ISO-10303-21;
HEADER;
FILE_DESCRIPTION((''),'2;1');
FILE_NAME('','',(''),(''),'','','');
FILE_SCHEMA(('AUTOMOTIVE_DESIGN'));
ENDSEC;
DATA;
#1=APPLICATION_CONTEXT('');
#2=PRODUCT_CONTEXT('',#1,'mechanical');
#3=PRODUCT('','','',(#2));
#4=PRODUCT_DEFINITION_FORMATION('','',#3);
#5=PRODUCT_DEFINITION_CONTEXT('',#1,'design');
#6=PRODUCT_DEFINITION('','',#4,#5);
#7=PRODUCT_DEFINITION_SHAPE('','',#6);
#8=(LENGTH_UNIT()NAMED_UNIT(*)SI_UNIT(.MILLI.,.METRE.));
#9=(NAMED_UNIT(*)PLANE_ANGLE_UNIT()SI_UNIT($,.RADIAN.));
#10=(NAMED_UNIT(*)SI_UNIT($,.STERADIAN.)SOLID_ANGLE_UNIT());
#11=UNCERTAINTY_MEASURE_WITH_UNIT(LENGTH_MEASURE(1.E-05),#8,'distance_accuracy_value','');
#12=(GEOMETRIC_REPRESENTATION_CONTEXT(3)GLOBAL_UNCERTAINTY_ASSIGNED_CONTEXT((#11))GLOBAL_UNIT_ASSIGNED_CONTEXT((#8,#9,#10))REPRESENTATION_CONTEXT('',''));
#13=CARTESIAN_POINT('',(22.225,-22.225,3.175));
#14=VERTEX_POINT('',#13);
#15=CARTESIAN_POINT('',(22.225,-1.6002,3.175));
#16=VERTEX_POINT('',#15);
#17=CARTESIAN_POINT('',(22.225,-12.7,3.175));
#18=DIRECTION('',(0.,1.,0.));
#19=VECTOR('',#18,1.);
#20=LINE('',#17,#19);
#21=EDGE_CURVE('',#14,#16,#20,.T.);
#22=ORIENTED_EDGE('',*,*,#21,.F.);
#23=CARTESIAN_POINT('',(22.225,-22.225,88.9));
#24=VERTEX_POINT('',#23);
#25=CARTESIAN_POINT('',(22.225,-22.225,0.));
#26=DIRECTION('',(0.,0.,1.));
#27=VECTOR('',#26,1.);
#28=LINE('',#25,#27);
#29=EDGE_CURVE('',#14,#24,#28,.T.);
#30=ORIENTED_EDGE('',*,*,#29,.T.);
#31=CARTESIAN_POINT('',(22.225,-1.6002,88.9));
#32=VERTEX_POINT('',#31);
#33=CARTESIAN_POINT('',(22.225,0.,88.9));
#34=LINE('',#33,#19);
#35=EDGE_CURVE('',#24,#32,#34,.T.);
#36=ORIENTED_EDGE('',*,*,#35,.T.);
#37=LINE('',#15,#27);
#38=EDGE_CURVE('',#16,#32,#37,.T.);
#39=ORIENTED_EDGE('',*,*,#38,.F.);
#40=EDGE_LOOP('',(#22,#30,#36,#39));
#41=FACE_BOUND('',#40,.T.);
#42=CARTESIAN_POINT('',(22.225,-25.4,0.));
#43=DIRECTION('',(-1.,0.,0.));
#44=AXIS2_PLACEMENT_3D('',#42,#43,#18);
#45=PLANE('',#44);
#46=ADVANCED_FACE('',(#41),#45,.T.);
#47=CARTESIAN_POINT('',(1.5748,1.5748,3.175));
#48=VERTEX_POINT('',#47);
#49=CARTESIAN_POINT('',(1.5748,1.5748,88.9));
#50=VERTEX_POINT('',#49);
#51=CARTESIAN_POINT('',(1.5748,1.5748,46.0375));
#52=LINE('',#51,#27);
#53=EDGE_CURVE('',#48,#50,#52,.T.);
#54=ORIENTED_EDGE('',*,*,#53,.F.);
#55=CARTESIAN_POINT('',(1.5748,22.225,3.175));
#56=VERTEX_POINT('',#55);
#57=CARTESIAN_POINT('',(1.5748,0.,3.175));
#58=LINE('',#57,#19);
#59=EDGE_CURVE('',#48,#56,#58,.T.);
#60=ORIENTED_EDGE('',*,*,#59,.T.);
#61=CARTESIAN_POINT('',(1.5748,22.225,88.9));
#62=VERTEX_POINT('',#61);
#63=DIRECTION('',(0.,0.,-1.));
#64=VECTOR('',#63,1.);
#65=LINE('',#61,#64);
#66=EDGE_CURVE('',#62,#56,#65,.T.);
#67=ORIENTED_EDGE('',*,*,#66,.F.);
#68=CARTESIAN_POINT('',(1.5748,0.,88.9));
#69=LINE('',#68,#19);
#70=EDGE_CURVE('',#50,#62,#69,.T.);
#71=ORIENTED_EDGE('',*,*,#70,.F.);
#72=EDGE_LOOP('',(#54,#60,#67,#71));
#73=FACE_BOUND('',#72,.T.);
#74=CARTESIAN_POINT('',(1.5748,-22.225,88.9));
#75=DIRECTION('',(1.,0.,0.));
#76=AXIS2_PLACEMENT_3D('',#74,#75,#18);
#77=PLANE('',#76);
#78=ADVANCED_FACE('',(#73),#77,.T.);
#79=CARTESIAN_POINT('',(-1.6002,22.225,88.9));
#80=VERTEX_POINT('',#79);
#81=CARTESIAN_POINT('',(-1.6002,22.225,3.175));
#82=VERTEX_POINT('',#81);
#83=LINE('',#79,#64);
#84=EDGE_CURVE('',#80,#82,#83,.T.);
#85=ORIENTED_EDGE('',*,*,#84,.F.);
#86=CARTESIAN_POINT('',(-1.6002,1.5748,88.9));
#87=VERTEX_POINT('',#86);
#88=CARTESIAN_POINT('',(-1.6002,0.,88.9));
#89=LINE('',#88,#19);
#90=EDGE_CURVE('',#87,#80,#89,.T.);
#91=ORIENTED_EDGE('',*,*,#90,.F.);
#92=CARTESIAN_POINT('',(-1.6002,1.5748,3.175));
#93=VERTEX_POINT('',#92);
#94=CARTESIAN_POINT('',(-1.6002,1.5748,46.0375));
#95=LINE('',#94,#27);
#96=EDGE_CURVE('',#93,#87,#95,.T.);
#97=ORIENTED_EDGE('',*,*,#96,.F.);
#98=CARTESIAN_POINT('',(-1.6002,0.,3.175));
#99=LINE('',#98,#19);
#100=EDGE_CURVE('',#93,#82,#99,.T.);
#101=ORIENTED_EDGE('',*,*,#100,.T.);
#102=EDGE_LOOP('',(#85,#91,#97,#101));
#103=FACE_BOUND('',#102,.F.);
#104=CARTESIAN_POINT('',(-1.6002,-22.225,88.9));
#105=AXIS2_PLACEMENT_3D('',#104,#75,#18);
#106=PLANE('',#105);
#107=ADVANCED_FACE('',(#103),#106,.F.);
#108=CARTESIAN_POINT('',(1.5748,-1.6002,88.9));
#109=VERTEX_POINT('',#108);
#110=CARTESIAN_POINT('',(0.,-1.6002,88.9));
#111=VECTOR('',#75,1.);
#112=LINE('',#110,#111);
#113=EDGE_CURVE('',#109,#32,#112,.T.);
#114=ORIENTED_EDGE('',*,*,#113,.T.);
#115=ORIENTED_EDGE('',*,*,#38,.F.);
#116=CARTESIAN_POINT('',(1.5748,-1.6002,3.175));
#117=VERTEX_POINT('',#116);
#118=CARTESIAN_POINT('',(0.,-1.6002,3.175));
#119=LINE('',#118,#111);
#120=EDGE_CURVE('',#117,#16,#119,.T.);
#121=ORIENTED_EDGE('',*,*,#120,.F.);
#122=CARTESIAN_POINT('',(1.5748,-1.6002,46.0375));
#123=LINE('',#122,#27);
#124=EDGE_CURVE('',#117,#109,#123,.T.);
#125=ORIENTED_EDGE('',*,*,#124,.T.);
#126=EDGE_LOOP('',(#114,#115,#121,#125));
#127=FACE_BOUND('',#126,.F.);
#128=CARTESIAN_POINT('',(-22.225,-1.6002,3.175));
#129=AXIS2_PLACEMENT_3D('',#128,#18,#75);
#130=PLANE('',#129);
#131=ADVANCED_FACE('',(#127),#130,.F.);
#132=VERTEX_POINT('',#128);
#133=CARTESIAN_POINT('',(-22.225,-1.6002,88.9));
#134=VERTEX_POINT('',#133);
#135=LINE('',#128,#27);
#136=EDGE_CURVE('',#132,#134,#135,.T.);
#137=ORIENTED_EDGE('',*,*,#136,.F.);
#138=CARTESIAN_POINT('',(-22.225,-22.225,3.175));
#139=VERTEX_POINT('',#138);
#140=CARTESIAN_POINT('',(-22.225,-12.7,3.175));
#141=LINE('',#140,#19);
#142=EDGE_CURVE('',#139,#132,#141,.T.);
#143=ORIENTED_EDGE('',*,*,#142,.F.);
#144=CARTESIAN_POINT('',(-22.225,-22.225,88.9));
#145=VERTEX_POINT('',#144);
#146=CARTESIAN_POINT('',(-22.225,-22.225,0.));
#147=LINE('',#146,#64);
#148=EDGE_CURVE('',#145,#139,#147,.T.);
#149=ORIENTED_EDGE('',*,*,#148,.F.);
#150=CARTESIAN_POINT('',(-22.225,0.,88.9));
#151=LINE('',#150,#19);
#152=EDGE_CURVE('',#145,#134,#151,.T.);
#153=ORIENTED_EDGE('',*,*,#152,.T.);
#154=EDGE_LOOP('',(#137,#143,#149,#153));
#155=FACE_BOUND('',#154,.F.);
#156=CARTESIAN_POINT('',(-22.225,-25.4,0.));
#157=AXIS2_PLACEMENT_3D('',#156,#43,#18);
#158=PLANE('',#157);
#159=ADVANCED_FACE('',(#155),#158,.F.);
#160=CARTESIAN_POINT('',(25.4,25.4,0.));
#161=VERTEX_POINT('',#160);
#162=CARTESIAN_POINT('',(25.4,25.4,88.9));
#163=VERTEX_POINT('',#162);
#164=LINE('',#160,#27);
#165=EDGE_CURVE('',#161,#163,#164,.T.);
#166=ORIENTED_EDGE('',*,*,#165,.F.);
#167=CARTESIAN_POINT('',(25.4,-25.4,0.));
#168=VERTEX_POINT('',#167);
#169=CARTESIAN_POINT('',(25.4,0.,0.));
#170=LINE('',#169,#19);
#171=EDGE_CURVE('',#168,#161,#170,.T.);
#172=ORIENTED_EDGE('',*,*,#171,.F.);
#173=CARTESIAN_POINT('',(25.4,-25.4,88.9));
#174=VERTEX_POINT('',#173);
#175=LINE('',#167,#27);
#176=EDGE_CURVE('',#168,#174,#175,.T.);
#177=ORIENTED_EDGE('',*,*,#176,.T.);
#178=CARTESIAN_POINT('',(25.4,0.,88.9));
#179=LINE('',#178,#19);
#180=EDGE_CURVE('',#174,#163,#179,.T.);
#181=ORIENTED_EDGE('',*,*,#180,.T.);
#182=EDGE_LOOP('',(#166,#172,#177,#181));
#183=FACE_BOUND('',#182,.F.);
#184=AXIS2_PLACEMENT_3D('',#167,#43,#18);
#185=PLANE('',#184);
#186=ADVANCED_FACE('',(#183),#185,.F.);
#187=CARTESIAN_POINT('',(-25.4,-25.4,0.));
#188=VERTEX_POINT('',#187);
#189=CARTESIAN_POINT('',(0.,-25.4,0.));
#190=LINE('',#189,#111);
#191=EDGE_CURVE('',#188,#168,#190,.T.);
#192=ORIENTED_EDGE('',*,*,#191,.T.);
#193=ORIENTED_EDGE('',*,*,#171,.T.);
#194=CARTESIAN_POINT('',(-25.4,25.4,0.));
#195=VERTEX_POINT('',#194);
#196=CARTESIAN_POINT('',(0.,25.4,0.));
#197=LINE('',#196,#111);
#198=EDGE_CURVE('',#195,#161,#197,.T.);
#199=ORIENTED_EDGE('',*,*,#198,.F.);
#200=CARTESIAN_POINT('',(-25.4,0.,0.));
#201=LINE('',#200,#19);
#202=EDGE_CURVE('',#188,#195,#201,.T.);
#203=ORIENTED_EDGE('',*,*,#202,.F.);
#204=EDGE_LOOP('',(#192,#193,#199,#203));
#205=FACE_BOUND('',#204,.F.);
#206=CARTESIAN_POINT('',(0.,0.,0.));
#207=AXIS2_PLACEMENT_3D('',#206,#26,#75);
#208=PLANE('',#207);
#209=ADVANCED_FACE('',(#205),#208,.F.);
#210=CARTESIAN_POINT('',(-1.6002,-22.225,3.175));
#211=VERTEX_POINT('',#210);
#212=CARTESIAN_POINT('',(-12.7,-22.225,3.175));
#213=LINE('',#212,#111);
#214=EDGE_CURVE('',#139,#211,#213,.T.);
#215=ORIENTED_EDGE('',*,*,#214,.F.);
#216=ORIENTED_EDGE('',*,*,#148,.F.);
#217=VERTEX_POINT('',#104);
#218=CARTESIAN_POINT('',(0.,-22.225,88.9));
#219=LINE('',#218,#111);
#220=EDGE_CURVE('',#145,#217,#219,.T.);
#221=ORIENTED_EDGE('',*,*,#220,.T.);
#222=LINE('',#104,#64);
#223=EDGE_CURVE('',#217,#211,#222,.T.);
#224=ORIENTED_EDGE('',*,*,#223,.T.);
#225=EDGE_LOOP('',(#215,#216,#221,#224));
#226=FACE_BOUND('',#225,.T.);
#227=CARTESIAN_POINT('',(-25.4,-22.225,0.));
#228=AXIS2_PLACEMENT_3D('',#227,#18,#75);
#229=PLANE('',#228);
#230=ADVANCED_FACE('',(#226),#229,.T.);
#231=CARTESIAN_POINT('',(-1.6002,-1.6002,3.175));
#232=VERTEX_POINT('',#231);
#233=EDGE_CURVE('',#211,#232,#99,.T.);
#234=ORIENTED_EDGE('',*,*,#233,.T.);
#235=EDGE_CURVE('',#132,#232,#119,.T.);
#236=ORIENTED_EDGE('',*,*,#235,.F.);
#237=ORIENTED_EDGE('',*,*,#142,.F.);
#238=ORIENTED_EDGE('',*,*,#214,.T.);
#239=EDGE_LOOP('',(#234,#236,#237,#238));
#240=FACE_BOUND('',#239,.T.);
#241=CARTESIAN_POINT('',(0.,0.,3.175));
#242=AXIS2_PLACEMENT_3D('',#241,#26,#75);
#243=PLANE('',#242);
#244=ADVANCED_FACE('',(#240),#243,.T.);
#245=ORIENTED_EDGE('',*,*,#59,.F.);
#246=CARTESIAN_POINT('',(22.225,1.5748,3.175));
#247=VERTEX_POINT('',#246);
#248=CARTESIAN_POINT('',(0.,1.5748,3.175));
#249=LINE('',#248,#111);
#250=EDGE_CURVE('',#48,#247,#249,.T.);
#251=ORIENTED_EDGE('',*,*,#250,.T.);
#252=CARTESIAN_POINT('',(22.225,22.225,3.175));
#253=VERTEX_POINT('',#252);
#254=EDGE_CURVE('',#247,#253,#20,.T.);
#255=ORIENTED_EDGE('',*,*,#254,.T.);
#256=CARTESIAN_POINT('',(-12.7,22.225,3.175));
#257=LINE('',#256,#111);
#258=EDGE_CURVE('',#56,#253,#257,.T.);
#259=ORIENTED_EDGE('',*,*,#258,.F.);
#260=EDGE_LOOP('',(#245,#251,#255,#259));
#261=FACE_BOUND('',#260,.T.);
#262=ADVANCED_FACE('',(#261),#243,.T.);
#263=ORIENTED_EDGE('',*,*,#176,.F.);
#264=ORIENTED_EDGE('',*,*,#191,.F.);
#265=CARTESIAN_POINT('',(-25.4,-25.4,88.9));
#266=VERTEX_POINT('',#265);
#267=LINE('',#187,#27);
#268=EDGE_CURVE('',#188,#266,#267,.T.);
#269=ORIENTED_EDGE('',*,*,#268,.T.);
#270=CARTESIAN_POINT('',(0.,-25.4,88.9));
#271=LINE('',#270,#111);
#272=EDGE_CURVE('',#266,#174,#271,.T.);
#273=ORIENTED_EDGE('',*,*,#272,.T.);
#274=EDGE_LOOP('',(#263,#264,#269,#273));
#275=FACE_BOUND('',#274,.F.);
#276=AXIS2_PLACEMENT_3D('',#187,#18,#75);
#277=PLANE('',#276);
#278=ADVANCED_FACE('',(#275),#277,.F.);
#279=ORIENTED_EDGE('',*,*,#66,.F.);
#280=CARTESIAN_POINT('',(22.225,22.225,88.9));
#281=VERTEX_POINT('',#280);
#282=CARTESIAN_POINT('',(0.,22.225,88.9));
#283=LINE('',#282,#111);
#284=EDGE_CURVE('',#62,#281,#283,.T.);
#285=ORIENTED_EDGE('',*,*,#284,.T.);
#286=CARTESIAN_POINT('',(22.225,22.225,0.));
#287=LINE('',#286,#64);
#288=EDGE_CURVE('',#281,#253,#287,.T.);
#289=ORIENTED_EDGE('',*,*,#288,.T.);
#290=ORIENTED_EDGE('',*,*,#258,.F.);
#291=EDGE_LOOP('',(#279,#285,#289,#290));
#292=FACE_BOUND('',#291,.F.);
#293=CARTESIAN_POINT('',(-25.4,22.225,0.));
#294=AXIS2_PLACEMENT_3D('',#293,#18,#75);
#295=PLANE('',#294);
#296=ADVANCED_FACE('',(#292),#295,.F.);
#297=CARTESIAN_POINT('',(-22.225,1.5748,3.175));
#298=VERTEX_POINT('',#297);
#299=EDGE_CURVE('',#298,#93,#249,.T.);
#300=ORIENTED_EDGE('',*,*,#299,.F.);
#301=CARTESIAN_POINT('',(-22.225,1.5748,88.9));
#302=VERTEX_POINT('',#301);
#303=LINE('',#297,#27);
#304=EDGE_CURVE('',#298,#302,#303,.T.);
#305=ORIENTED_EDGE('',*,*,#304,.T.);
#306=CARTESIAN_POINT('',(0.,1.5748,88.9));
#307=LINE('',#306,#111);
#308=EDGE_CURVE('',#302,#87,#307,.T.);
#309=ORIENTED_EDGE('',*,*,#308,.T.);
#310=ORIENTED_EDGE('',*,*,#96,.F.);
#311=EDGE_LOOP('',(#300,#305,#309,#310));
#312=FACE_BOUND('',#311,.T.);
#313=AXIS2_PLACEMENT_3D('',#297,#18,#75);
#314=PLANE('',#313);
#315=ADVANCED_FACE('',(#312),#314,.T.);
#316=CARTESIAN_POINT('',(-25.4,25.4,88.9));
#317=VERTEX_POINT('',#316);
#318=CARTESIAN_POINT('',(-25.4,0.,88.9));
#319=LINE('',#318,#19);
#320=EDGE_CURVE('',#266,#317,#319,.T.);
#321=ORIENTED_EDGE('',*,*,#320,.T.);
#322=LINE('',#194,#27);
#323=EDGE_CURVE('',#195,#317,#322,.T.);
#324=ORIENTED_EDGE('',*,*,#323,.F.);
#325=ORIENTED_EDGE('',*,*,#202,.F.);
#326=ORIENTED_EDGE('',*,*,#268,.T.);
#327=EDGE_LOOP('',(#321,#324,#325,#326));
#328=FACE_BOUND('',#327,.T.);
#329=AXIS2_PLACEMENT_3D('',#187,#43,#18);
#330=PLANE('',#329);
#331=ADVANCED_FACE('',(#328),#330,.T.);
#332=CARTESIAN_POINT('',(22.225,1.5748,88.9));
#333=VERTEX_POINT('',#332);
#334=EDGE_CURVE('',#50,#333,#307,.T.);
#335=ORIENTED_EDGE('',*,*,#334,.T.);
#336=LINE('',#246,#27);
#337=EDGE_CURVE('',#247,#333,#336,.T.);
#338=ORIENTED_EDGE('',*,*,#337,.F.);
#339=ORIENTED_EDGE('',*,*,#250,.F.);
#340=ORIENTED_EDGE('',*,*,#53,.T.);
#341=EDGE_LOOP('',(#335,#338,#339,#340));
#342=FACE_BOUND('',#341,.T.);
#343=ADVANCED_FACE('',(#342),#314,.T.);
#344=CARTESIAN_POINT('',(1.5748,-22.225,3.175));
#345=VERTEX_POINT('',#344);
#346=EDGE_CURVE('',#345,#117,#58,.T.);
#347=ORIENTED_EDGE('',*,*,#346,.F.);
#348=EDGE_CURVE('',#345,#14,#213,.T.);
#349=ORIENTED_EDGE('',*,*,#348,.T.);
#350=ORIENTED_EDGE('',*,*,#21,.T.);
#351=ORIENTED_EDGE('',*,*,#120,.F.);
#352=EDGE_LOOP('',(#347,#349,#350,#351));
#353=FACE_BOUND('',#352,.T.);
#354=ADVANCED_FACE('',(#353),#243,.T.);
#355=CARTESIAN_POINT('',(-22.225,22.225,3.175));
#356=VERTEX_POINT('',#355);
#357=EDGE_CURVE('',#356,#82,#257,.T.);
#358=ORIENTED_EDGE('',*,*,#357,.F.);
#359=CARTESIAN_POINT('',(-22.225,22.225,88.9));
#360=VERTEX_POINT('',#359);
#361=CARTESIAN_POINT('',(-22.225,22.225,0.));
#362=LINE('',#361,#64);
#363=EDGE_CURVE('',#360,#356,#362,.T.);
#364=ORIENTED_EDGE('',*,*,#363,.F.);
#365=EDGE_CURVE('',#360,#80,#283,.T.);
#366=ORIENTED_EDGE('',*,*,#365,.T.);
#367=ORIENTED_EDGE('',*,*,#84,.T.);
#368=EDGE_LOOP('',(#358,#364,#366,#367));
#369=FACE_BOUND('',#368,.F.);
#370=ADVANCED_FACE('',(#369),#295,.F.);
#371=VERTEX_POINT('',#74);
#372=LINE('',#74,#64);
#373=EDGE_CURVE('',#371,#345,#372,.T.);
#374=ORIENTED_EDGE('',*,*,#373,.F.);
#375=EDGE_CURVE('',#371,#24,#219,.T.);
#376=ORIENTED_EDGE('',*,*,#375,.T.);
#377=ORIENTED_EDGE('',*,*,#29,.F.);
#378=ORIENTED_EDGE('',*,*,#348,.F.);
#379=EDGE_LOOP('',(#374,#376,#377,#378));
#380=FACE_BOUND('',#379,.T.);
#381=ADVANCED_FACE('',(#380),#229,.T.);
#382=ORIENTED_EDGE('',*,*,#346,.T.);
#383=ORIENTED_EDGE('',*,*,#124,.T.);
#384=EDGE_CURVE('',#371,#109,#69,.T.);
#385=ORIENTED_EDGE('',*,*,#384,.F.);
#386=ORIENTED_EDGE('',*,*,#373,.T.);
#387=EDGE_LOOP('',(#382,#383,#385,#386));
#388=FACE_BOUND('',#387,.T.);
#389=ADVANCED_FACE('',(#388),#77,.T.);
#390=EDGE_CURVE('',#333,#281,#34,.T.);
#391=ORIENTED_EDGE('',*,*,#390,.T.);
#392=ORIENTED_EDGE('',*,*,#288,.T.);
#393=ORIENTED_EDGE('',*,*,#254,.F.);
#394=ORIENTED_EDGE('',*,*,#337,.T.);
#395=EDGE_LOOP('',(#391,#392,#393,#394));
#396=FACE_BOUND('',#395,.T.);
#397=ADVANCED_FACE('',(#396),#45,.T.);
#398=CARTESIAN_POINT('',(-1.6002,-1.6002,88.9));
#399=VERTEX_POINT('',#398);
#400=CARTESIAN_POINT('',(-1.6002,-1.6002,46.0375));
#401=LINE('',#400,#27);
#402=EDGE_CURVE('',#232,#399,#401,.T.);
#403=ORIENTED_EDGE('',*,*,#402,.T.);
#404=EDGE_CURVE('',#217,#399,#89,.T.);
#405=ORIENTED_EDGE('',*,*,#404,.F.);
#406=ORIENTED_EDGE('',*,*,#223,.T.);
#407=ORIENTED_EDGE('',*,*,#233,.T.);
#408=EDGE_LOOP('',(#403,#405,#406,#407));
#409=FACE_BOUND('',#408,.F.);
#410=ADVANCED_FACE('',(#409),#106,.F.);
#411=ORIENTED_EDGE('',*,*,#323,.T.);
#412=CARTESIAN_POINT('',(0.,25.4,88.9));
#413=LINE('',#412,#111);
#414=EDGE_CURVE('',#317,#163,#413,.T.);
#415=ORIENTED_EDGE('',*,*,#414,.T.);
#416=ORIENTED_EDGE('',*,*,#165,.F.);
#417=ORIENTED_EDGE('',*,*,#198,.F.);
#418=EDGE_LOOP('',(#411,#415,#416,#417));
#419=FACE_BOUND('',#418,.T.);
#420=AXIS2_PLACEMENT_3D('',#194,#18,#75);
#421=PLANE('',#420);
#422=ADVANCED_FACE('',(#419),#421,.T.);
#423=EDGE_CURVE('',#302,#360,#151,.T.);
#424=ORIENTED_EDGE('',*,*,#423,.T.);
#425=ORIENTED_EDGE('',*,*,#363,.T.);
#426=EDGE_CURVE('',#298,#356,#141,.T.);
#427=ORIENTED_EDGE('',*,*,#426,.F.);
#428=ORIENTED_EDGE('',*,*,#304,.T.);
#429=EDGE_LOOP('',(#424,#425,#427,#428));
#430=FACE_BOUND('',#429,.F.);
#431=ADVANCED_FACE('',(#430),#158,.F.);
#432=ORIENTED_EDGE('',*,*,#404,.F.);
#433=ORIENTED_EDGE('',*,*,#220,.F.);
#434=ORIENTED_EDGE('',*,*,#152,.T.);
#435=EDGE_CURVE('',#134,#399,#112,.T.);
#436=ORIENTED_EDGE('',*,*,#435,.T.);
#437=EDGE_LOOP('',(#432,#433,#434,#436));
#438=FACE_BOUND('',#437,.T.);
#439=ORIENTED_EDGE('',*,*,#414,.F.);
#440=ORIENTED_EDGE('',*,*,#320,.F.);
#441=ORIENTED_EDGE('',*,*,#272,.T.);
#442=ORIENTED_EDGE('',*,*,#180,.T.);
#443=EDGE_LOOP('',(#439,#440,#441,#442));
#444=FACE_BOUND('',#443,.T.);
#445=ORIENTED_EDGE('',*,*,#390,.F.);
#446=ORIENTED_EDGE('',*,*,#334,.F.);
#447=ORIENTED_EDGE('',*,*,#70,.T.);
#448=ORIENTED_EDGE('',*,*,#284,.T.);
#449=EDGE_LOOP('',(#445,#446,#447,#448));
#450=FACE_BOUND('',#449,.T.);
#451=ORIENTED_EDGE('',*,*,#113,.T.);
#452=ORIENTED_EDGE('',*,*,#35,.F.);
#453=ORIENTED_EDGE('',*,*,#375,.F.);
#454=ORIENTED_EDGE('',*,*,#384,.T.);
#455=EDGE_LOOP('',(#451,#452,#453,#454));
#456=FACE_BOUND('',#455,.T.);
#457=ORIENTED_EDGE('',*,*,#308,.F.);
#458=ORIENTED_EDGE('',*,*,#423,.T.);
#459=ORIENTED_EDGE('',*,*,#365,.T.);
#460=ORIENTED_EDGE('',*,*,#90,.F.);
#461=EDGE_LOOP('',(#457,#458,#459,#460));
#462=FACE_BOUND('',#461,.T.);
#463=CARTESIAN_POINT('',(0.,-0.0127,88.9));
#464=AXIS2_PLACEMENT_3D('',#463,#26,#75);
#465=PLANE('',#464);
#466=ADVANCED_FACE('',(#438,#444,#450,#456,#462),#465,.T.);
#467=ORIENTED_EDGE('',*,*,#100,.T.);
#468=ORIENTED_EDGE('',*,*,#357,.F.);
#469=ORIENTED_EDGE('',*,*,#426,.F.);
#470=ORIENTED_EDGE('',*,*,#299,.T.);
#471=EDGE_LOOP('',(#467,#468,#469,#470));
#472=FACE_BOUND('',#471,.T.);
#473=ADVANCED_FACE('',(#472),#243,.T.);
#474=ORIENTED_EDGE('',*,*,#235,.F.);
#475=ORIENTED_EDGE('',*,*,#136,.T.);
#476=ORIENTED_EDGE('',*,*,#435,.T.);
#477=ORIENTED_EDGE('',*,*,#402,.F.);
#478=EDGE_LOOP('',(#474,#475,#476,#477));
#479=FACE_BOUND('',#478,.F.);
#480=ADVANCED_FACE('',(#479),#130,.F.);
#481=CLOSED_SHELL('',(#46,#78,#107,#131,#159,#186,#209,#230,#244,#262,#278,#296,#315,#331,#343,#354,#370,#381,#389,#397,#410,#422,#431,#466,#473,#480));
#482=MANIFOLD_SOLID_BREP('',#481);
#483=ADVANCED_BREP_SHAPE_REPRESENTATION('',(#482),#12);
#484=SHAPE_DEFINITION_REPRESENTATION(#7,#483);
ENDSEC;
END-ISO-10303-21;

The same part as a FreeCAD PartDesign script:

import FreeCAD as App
import Part
import Sketcher
from FreeCAD import Vector
Q = App.Units.Quantity


def faces_at(feature, points):
    """Names of the faces that lie closest to the given points."""
    faces = feature.Shape.Faces
    near = lambda p: min(range(len(faces)), key=lambda i: faces[i].distToShape(Part.Vertex(*p))[0])
    return sorted({f"Face{near(p) + 1}" for p in points})


def add_polygon(sketch, points):
    """Adds a closed chain of lines whose ends are joined by coincident constraints."""
    first, n = sketch.GeometryCount, len(points)
    for a, b in zip(points, points[1:] + points[:1]):
        sketch.addGeometry(Part.LineSegment(App.Vector(*a, 0), App.Vector(*b, 0)), False)
    for i in range(n):
        sketch.addConstraint(Sketcher.Constraint("Coincident", first + i, 2, first + (i + 1) % n, 1))

doc = App.newDocument("Part")
body = doc.addObject("PartDesign::Body", "Body")

sketch1 = body.newObject("Sketcher::SketchObject", "Sketch")
sketch1.AttachmentSupport = (doc.getObject("XY_Plane"), [""])
sketch1.MapMode = "FlatFace"
add_polygon(sketch1, [(-25.4, 25.4), (-25.4, -25.4), (25.4, -25.4), (25.4, 25.4)])
sketch1.addConstraint(Sketcher.Constraint("Vertical", 0))
sketch1.addConstraint(Sketcher.Constraint("Horizontal", 1))
sketch1.addConstraint(Sketcher.Constraint("Vertical", 2))
sketch1.addConstraint(Sketcher.Constraint("Horizontal", 3))
sketch1.addConstraint(Sketcher.Constraint("Symmetric", 0, 2, 2, 2, -1, 1))
sketch1.addConstraint(Sketcher.Constraint("Equal", 3, 0))
sketch1.addConstraint(Sketcher.Constraint("DistanceX", 1, 1, 1, 2, Q("2 in")))
pad1 = body.newObject("PartDesign::Pad", "Pad")
pad1.Profile = sketch1
pad1.Length = Q("3.5 in")
doc.recompute()

thickness = body.newObject("PartDesign::Thickness", "Thickness")
thickness.Base = (pad1, faces_at(pad1, [(0, 0, 88.9)]))
thickness.Value = Q("0.125 in")
thickness.Reversed = True
thickness.Join = "Arc"
body2 = doc.addObject("PartDesign::Body", "Body001")

sketch2 = body2.newObject("Sketcher::SketchObject", "Sketch001")
sketch2.AttachmentSupport = (doc.getObject("XY_Plane001"), [""])
sketch2.MapMode = "FlatFace"
sketch2.AttachmentOffset = App.Placement(Vector(0, 0, 3.5 * 25.4), App.Rotation())
add_polygon(sketch2, [(-1.6002, 22.225), (-1.6002, -22.225), (1.5748, -22.225), (1.5748, 22.225)])
sketch2.addConstraint(Sketcher.Constraint("Vertical", 0))
sketch2.addConstraint(Sketcher.Constraint("Horizontal", 1))
sketch2.addConstraint(Sketcher.Constraint("Vertical", 2))
sketch2.addConstraint(Sketcher.Constraint("Horizontal", 3))
sketch2.addConstraint(Sketcher.Constraint("DistanceY", 0, 2, 0, 1, Q("1.75 in")))
sketch2.addConstraint(Sketcher.Constraint("DistanceX", 1, 1, 1, 2, Q("0.125 in")))
sketch2.addConstraint(Sketcher.Constraint("DistanceX", 0, 2, -1, 1, Q("0.063 in")))
sketch2.addConstraint(Sketcher.Constraint("DistanceY", 0, 2, -1, 1, Q("0.875 in")))
pad2 = body2.newObject("PartDesign::Pad", "Pad001")
pad2.Profile = sketch2
pad2.Length = Q("3.375 in")
pad2.Reversed = True
doc.recompute()

boolean = body.newObject("PartDesign::Boolean", "Boolean")
boolean.Type = "Fuse"
boolean.addObjects([body2])

sketch3 = body.newObject("Sketcher::SketchObject", "Sketch002")
sketch3.AttachmentSupport = (doc.getObject("XY_Plane"), [""])
sketch3.MapMode = "FlatFace"
sketch3.AttachmentOffset = App.Placement(Vector(0, 0, 0.125 * 25.4), App.Rotation())
add_polygon(sketch3, [(-22.225, 1.5748), (-22.225, -1.6002), (22.225, -1.6002), (22.225, 1.5748)])
sketch3.addConstraint(Sketcher.Constraint("Vertical", 0))
sketch3.addConstraint(Sketcher.Constraint("Horizontal", 1))
sketch3.addConstraint(Sketcher.Constraint("Vertical", 2))
sketch3.addConstraint(Sketcher.Constraint("Horizontal", 3))
sketch3.addConstraint(Sketcher.Constraint("DistanceX", 1, 1, 1, 2, Q("1.75 in")))
sketch3.addConstraint(Sketcher.Constraint("DistanceY", 0, 2, 0, 1, Q("0.125 in")))
sketch3.addConstraint(Sketcher.Constraint("DistanceX", 0, 2, -1, 1, Q("0.875 in")))
sketch3.addConstraint(Sketcher.Constraint("DistanceY", 0, 2, -1, 1, Q("0.063 in")))
pad3 = body.newObject("PartDesign::Pad", "Pad002")
pad3.Profile = sketch3
pad3.Length = Q("3.375 in")

doc.recompute()
